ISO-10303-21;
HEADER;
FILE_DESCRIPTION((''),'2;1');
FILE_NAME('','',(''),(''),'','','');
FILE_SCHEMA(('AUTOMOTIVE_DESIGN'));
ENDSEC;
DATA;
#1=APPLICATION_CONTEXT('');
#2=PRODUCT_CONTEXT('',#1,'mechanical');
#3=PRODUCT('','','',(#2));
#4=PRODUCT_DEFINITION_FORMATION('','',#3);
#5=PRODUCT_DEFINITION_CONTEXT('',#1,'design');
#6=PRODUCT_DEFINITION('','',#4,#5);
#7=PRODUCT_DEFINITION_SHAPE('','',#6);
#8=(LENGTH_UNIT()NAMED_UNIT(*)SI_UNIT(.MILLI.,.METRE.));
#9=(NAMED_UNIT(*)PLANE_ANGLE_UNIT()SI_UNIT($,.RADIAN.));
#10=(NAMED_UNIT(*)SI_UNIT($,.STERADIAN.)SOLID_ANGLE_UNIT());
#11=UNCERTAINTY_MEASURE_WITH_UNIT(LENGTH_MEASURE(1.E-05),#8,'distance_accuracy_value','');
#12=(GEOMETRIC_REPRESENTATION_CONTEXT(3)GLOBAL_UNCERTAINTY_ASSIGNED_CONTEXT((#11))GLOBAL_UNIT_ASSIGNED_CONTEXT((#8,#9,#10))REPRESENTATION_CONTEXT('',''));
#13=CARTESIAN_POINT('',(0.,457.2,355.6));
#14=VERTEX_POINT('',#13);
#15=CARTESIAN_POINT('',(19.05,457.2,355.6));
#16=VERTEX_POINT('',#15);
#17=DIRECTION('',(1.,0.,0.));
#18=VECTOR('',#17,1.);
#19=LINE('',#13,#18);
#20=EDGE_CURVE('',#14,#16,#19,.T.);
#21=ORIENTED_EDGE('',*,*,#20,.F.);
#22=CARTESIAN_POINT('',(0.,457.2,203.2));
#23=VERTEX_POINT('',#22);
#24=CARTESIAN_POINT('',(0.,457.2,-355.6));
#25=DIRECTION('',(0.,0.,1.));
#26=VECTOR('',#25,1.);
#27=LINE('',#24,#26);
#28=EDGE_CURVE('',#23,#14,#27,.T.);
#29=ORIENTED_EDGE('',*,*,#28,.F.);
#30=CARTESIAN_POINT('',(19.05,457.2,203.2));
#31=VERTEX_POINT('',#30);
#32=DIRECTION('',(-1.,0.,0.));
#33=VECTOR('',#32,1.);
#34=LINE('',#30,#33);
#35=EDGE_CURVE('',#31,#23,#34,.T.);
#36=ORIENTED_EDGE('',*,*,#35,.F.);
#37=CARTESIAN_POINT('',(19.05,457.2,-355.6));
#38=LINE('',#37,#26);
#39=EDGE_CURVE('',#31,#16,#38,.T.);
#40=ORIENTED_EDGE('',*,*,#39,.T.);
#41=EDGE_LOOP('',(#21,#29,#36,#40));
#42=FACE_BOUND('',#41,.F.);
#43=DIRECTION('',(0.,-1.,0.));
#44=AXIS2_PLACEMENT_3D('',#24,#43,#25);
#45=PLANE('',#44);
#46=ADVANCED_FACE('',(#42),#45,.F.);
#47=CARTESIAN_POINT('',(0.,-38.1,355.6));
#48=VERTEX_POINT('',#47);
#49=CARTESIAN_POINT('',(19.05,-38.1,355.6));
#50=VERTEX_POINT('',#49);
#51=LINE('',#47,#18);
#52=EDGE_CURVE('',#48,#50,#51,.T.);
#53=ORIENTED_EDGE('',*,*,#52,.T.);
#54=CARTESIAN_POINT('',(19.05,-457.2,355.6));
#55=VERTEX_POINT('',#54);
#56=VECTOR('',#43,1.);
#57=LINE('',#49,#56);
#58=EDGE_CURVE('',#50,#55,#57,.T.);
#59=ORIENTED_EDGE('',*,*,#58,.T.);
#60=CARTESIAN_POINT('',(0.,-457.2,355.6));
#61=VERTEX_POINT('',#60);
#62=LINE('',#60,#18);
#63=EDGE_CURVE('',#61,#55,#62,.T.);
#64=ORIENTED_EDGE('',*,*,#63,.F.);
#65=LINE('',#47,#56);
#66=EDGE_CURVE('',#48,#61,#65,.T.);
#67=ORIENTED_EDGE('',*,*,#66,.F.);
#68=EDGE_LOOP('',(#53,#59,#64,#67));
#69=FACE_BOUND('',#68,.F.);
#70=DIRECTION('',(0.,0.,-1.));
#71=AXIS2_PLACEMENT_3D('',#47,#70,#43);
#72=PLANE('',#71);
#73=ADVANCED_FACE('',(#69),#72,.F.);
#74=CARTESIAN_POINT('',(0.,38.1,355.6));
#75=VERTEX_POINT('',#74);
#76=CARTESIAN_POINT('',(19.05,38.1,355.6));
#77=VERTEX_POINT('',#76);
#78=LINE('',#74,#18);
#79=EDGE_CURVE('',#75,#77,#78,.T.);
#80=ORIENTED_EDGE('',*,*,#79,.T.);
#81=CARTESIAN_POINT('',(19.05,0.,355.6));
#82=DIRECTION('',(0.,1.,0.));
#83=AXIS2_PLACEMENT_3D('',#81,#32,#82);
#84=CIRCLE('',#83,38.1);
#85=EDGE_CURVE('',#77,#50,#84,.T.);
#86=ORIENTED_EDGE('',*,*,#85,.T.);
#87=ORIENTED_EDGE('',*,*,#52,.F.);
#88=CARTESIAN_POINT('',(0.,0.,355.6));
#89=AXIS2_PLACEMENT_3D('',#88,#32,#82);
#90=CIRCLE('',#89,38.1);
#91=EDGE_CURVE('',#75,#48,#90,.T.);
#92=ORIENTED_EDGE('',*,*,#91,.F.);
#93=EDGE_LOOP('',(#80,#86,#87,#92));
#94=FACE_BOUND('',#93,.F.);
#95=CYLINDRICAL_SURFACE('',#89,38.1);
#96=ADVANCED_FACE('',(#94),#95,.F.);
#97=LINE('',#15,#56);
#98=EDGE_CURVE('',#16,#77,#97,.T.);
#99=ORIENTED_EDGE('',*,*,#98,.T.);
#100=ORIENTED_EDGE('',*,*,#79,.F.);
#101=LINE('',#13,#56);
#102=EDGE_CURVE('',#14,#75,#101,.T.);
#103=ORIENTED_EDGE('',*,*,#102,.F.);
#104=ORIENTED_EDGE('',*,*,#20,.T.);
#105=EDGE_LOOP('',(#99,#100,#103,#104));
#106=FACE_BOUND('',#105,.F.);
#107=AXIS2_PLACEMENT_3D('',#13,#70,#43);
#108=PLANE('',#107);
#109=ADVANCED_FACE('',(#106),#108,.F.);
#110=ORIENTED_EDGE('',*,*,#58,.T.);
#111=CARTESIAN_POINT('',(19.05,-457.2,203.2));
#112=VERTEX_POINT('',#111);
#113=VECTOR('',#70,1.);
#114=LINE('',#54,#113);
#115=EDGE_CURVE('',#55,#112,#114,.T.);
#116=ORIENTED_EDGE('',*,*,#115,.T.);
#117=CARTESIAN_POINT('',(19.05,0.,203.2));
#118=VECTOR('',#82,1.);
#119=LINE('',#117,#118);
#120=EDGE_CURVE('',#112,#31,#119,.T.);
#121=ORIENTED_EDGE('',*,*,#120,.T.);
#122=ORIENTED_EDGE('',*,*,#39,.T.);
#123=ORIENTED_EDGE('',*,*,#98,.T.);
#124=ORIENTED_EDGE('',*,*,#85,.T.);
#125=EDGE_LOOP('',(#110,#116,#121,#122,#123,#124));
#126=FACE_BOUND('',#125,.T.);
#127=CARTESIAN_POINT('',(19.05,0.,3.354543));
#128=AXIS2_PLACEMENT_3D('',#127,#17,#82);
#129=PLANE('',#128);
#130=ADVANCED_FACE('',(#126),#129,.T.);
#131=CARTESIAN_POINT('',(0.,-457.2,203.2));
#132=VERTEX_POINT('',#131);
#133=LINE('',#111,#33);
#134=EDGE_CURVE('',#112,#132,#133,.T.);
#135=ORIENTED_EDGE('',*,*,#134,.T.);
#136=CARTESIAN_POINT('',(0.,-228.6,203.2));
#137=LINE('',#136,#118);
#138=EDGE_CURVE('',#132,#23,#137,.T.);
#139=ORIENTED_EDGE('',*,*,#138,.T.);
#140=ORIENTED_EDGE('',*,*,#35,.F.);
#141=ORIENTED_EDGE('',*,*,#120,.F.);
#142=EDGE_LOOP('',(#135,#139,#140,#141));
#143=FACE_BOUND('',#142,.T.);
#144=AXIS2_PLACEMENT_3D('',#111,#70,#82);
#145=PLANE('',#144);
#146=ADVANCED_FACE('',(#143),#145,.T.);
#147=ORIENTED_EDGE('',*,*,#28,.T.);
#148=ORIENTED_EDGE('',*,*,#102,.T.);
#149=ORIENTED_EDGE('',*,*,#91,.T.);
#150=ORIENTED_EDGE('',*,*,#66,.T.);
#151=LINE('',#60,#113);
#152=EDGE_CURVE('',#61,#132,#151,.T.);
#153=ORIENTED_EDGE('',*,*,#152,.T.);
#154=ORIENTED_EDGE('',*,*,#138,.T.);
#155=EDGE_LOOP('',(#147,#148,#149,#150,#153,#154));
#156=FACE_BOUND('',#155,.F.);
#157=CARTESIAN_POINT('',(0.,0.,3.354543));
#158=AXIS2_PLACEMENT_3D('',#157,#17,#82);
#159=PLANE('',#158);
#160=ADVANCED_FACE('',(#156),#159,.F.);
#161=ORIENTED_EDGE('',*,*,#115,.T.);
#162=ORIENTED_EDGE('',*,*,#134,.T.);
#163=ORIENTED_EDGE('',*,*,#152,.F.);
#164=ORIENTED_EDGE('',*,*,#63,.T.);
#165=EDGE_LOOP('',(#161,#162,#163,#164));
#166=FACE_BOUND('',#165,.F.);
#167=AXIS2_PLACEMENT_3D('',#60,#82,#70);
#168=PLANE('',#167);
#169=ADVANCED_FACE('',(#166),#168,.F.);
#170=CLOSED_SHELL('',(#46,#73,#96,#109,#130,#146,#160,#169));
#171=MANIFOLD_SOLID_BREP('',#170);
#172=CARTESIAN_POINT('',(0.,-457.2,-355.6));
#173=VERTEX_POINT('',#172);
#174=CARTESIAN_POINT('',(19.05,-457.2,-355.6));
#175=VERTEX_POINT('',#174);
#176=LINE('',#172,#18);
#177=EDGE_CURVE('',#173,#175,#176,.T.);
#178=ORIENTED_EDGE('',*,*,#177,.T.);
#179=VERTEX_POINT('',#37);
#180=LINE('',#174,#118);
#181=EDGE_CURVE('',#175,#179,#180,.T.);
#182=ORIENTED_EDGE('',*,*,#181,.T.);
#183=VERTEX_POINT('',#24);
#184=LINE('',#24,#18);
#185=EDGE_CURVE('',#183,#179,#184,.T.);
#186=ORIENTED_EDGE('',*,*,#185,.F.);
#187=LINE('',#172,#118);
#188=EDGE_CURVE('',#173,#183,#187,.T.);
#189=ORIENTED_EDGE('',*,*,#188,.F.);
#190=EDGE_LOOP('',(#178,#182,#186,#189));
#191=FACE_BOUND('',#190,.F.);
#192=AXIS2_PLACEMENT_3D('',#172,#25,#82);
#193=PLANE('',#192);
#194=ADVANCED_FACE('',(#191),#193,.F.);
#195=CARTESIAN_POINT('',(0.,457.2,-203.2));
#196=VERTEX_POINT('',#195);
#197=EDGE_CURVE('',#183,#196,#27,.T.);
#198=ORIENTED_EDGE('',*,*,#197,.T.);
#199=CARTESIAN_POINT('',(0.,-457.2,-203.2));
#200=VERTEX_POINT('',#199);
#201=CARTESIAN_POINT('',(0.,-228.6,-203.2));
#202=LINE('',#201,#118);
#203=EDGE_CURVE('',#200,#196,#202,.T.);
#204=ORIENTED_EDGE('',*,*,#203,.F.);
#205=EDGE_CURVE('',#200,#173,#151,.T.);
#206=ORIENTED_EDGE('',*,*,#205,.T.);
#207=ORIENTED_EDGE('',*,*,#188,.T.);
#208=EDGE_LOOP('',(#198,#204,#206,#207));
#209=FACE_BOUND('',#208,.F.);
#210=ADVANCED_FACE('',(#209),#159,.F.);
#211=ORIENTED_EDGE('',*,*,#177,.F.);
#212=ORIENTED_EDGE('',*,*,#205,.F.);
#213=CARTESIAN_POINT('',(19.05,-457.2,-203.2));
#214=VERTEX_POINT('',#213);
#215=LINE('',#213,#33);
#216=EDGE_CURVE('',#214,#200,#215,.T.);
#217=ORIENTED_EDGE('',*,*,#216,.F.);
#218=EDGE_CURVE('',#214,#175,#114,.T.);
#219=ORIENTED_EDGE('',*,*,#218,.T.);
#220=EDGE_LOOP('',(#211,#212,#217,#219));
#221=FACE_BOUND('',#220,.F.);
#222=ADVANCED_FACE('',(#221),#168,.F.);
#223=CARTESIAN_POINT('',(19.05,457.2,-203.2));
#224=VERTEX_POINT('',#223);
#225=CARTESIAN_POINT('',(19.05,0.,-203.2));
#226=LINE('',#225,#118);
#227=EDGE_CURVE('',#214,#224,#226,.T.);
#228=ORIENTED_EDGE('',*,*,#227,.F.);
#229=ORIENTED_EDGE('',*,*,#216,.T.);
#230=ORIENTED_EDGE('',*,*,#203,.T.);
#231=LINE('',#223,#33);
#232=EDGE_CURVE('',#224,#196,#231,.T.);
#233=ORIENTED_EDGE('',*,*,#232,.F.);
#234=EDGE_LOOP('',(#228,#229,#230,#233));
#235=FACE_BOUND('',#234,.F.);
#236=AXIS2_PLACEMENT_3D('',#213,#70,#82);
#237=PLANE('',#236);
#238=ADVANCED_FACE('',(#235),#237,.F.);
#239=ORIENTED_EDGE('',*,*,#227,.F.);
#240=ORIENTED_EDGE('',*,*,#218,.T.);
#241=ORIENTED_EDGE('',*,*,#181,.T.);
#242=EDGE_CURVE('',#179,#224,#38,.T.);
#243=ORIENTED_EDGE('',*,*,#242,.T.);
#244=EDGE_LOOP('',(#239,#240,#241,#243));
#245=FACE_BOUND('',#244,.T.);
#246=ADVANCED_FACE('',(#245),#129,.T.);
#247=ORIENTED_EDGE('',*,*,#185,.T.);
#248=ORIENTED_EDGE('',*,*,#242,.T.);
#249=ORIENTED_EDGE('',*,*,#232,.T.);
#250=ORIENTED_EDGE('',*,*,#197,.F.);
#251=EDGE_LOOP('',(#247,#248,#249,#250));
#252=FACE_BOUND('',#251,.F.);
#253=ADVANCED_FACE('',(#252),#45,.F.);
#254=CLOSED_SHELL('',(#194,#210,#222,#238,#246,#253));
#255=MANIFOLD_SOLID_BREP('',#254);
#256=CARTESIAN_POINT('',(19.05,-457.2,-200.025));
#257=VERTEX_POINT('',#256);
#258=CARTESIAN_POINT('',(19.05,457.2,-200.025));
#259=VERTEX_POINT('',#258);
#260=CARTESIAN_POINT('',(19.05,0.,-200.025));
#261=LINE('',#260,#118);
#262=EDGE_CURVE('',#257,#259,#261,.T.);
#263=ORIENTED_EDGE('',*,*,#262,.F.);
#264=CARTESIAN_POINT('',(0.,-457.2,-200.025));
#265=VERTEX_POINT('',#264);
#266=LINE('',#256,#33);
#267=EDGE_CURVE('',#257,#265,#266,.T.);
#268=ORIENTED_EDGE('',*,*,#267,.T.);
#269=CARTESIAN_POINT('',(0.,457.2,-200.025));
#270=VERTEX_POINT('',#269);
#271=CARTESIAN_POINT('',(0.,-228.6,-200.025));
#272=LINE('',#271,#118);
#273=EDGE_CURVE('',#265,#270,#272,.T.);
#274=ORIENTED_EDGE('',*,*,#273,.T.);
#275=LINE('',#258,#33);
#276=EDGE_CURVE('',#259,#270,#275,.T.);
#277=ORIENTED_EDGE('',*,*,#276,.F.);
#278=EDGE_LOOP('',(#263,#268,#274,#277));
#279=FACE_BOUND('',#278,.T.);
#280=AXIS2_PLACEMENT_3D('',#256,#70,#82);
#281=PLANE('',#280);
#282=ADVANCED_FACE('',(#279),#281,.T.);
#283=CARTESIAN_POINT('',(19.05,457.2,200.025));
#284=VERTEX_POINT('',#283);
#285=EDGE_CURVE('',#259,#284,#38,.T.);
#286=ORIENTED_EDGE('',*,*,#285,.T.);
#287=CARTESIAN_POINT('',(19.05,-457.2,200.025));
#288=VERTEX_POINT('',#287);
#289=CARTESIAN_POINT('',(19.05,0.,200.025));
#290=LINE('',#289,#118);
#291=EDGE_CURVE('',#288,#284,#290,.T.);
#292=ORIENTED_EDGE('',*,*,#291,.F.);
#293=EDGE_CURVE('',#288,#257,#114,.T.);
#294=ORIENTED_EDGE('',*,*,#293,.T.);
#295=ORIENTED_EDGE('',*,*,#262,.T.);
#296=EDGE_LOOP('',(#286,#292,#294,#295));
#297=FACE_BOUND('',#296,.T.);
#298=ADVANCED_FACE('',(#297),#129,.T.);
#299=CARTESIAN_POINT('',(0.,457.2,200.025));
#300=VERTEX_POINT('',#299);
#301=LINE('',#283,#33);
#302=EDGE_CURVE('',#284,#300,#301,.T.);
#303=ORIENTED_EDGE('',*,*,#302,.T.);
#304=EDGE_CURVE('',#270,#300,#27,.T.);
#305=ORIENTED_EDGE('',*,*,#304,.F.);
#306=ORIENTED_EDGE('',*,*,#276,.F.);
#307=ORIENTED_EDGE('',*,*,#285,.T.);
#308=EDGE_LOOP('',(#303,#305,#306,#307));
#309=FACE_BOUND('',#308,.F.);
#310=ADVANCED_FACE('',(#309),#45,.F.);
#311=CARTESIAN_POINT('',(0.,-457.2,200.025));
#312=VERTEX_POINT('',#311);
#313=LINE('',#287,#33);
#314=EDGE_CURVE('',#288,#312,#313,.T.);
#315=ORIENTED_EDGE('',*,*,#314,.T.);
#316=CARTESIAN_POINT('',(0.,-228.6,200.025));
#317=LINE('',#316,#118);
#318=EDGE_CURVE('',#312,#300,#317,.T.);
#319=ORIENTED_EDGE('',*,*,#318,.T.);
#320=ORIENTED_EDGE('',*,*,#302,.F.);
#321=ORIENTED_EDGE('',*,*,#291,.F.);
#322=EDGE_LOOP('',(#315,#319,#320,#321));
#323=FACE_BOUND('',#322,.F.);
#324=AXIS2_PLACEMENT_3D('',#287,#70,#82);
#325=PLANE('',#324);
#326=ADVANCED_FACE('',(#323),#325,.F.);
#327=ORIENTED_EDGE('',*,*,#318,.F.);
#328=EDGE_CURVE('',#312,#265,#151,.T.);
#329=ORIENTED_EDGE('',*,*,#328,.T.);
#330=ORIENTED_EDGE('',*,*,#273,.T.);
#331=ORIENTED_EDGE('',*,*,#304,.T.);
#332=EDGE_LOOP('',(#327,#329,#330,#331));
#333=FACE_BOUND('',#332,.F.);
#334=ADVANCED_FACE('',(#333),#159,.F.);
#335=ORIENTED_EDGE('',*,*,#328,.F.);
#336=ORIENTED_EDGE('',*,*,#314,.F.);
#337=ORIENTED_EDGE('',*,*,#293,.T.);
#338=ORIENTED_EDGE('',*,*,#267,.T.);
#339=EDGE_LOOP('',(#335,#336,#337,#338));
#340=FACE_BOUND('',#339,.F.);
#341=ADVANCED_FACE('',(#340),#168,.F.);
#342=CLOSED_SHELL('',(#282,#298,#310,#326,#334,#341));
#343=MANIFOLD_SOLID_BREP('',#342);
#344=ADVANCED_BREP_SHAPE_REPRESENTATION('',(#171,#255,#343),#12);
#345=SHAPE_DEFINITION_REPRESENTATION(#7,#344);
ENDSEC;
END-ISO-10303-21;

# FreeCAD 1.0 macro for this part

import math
import FreeCAD as App
import Part
import Sketcher
Q = App.Units.Quantity

doc = App.newDocument("Part")
body = doc.addObject("PartDesign::Body", "Body")
body.AllowCompound = True

# Sketch on YZ plane
sketch1 = body.newObject("Sketcher::SketchObject", "Sketch")
sketch1.AttachmentSupport = (doc.getObject("YZ_Plane"), [""])
sketch1.MapMode = "FlatFace"
sketch1.addGeometry([
    Part.LineSegment(App.Vector(457, -356, 0), App.Vector(457, 356, 0)),  # 0
    Part.LineSegment(App.Vector(457, 356, 0), App.Vector(38, 356, 0)),  # 1
    Part.ArcOfCircle(Part.Circle(App.Vector(0, 356, 0), App.Vector(0, 0, 1), 38), math.radians(180), math.radians(360)),  # 2
    Part.LineSegment(App.Vector(-38, 356, 0), App.Vector(-457, 356, 0)),  # 3
    Part.LineSegment(App.Vector(-457, 356, 0), App.Vector(-457, -356, 0)),  # 4
    Part.LineSegment(App.Vector(-457, -356, 0), App.Vector(457, -356, 0)),  # 5
], False)
sketch1.addConstraint([
    Sketcher.Constraint("Coincident", 0, 2, 1, 1),
    Sketcher.Constraint("Coincident", 1, 2, 2, 2),
    Sketcher.Constraint("Coincident", 2, 1, 3, 1),
    Sketcher.Constraint("Coincident", 3, 2, 4, 1),
    Sketcher.Constraint("Coincident", 4, 2, 5, 1),
    Sketcher.Constraint("Coincident", 5, 2, 0, 1),
    Sketcher.Constraint("Vertical", 0),
    Sketcher.Constraint("Horizontal", 1),
    Sketcher.Constraint("Horizontal", 3),
    Sketcher.Constraint("Vertical", 4),
    Sketcher.Constraint("Horizontal", 5),
    Sketcher.Constraint("Symmetric", 0, 2, 4, 2, -1, 1),
    Sketcher.Constraint("Symmetric", 1, 2, 2, 1, -2),
    Sketcher.Constraint("Horizontal", 2, 3, 0, 2),
    Sketcher.Constraint("Radius", 2, Q("1.5 in")),
    Sketcher.Constraint("DistanceX", 5, 1, 5, 2, Q("36 in")),
    Sketcher.Constraint("DistanceY", 0, 1, 0, 2, Q("28 in")),
])
pad1 = body.newObject("PartDesign::Pad", "Pad")
pad1.Profile = sketch1
pad1.Length = Q("0.75 in")

# Sketch on YZ plane
sketch2 = body.newObject("Sketcher::SketchObject", "Sketch001")
sketch2.AttachmentSupport = (doc.getObject("YZ_Plane"), [""])
sketch2.MapMode = "FlatFace"
sketch2.AttachmentOffset = App.Placement(App.Vector(0, 0, 0.75 * 25.4), App.Rotation())
sketch2.addGeometry([
    Part.LineSegment(App.Vector(-457.2, 203.2, 0), App.Vector(-457.2, 200, 0)),  # 0
    Part.LineSegment(App.Vector(-457.2, 200, 0), App.Vector(457.2, 200, 0)),  # 1
    Part.LineSegment(App.Vector(457.2, 200, 0), App.Vector(457.2, 203.2, 0)),  # 2
    Part.LineSegment(App.Vector(457.2, 203.2, 0), App.Vector(-457.2, 203.2, 0)),  # 3
    Part.LineSegment(App.Vector(-457.2, -200, 0), App.Vector(-457.2, -203.2, 0)),  # 4
    Part.LineSegment(App.Vector(-457.2, -203.2, 0), App.Vector(457.2, -203.2, 0)),  # 5
    Part.LineSegment(App.Vector(457.2, -203.2, 0), App.Vector(457.2, -200, 0)),  # 6
    Part.LineSegment(App.Vector(457.2, -200, 0), App.Vector(-457.2, -200, 0)),  # 7
], False)
sketch2.addConstraint([
    Sketcher.Constraint("Coincident", 0, 2, 1, 1),
    Sketcher.Constraint("Coincident", 1, 2, 2, 1),
    Sketcher.Constraint("Coincident", 2, 2, 3, 1),
    Sketcher.Constraint("Coincident", 3, 2, 0, 1),
    Sketcher.Constraint("Coincident", 4, 2, 5, 1),
    Sketcher.Constraint("Coincident", 5, 2, 6, 1),
    Sketcher.Constraint("Coincident", 6, 2, 7, 1),
    Sketcher.Constraint("Coincident", 7, 2, 4, 1),
    Sketcher.Constraint("Vertical", 0),
    Sketcher.Constraint("Horizontal", 1),
    Sketcher.Constraint("Vertical", 2),
    Sketcher.Constraint("Horizontal", 3),
    Sketcher.Constraint("Vertical", 4),
    Sketcher.Constraint("Horizontal", 5),
    Sketcher.Constraint("Vertical", 6),
    Sketcher.Constraint("Horizontal", 7),
    Sketcher.Constraint("Symmetric", 2, 2, 4, 2, -1, 1),
    Sketcher.Constraint("Symmetric", 0, 2, 6, 2, -1, 1),
    Sketcher.Constraint("Vertical", 3, 2, 4, 2),
    Sketcher.Constraint("DistanceX", 1, 1, 1, 2, Q("36 in")),
    Sketcher.Constraint("DistanceY", -1, 1, 2, 2, Q("8 in")),
    Sketcher.Constraint("DistanceY", 0, 2, 0, 1, Q("0.125 in")),
])
pocket1 = body.newObject("PartDesign::Pocket", "Pocket")
pocket1.Profile = sketch2
pocket1.Length = Q("1 in")

doc.recompute()
